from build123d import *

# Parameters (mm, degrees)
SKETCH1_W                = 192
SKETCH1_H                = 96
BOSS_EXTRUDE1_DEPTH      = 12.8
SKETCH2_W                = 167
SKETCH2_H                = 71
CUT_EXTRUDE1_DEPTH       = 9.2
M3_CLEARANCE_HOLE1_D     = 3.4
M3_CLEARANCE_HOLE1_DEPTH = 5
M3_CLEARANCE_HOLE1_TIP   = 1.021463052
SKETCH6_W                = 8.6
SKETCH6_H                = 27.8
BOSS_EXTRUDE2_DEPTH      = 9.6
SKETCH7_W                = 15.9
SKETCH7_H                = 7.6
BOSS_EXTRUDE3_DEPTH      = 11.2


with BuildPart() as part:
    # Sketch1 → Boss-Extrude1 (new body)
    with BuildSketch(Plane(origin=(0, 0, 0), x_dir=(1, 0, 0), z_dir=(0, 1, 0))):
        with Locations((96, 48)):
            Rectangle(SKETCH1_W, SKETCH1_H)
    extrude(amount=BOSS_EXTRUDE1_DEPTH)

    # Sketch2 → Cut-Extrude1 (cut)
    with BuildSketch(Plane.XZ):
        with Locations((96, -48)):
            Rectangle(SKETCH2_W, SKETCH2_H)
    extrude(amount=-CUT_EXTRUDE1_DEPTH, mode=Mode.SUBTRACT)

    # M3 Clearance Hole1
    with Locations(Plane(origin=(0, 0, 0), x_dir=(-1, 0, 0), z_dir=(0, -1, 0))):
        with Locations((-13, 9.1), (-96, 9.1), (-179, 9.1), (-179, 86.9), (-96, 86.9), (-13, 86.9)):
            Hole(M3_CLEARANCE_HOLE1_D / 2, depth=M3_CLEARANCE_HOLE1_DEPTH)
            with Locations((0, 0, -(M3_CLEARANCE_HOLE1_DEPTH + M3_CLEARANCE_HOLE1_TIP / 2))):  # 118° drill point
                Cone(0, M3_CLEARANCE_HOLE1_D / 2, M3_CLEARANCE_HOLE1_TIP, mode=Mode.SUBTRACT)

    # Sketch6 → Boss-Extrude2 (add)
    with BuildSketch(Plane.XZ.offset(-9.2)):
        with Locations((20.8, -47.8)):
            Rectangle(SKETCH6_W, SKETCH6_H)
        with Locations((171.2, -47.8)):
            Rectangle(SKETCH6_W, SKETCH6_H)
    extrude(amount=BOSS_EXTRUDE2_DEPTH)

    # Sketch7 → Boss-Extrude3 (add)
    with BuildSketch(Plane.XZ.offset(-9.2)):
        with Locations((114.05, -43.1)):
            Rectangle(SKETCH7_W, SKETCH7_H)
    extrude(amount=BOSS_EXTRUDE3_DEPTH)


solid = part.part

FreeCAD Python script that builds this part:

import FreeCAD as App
import Part
import Sketcher

doc = App.newDocument("Part")
body = doc.addObject("PartDesign::Body", "Body")

# Sketch on XZ plane
sketch1 = body.newObject("Sketcher::SketchObject", "Sketch")
sketch1.AttachmentSupport = (doc.getObject("XZ_Plane"), [""])
sketch1.MapMode = "FlatFace"
sketch1.addGeometry([
    Part.LineSegment(App.Vector(0, -96, 0), App.Vector(0, 0, 0)),
    Part.LineSegment(App.Vector(0, 0, 0), App.Vector(192, 0, 0)),
    Part.LineSegment(App.Vector(192, 0, 0), App.Vector(192, -96, 0)),
    Part.LineSegment(App.Vector(192, -96, 0), App.Vector(0, -96, 0)),
], False)
sketch1.addConstraint([
    Sketcher.Constraint("Coincident", 0, 2, 1, 1),
    Sketcher.Constraint("Coincident", 1, 2, 2, 1),
    Sketcher.Constraint("Coincident", 2, 2, 3, 1),
    Sketcher.Constraint("Coincident", 3, 2, 0, 1),
    Sketcher.Constraint("Vertical", 0),
    Sketcher.Constraint("Horizontal", 1),
    Sketcher.Constraint("Vertical", 2),
    Sketcher.Constraint("Horizontal", 3),
    Sketcher.Constraint("Coincident", 0, 2, -1, 1),
    Sketcher.Constraint("DistanceX", 1, 1, 1, 2, 192.0),
    Sketcher.Constraint("DistanceY", 0, 1, 0, 2, 96.0),
])
pad1 = body.newObject("PartDesign::Pad", "Pad")
pad1.Profile = sketch1
pad1.Length = 12.8
pad1.Reversed = True

# Sketch on XZ plane
sketch2 = body.newObject("Sketcher::SketchObject", "Sketch001")
sketch2.AttachmentSupport = (doc.getObject("XZ_Plane"), [""])
sketch2.MapMode = "FlatFace"
sketch2.addGeometry([
    Part.LineSegment(App.Vector(12, -12, 0), App.Vector(12, -84, 0)),
    Part.LineSegment(App.Vector(12, -84, 0), App.Vector(180, -84, 0)),
    Part.LineSegment(App.Vector(180, -84, 0), App.Vector(180, -12, 0)),
    Part.LineSegment(App.Vector(180, -12, 0), App.Vector(12, -12, 0)),
], False)
sketch2.addConstraint([
    Sketcher.Constraint("Coincident", 0, 2, 1, 1),
    Sketcher.Constraint("Coincident", 1, 2, 2, 1),
    Sketcher.Constraint("Coincident", 2, 2, 3, 1),
    Sketcher.Constraint("Coincident", 3, 2, 0, 1),
    Sketcher.Constraint("Vertical", 0),
    Sketcher.Constraint("Horizontal", 1),
    Sketcher.Constraint("Vertical", 2),
    Sketcher.Constraint("Horizontal", 3),
    Sketcher.Constraint("DistanceX", 1, 1, 1, 2, 167.0),
    Sketcher.Constraint("DistanceY", 0, 2, 0, 1, 71.0),
    Sketcher.Constraint("DistanceX", -1, 1, 0, 2, 12.5),
    Sketcher.Constraint("DistanceY", 0, 2, -1, 1, 83.5),
])
pocket1 = body.newObject("PartDesign::Pocket", "Pocket")
pocket1.Profile = sketch2
pocket1.Length = 9.2

# Sketch on XZ plane
sketch3 = body.newObject("Sketcher::SketchObject", "Sketch002")
sketch3.AttachmentSupport = (doc.getObject("XZ_Plane"), [""])
sketch3.MapMode = "FlatFace"
sketch3.addGeometry([
    Part.Circle(App.Vector(13, -9.1, 0), App.Vector(0, 0, 1), 1.7),  # 0
    Part.Circle(App.Vector(96, -9.1, 0), App.Vector(0, 0, 1), 1.7),  # 1
    Part.Circle(App.Vector(179, -9.1, 0), App.Vector(0, 0, 1), 1.7),  # 2
    Part.Circle(App.Vector(179, -86.9, 0), App.Vector(0, 0, 1), 1.7),  # 3
    Part.Circle(App.Vector(96, -86.9, 0), App.Vector(0, 0, 1), 1.7),  # 4
    Part.Circle(App.Vector(13, -86.9, 0), App.Vector(0, 0, 1), 1.7),  # 5
], False)
sketch3.addConstraint([
    Sketcher.Constraint("Equal", 0, 1),
    Sketcher.Constraint("Equal", 1, 2),
    Sketcher.Constraint("Equal", 2, 3),
    Sketcher.Constraint("Equal", 3, 4),
    Sketcher.Constraint("Equal", 4, 5),
    Sketcher.Constraint("Horizontal", 0, 3, 1, 3),
    Sketcher.Constraint("Horizontal", 1, 3, 2, 3),
    Sketcher.Constraint("Horizontal", 3, 3, 4, 3),
    Sketcher.Constraint("Horizontal", 4, 3, 5, 3),
    Sketcher.Constraint("Vertical", 2, 3, 3, 3),
    Sketcher.Constraint("Vertical", 1, 3, 4, 3),
    Sketcher.Constraint("Vertical", 0, 3, 5, 3),
    Sketcher.Constraint("Diameter", 0, 3.4),
    Sketcher.Constraint("DistanceX", -1, 1, 0, 3, 13.0),
    Sketcher.Constraint("DistanceX", -1, 1, 1, 3, 96.0),
    Sketcher.Constraint("DistanceX", -1, 1, 2, 3, 179.0),
    Sketcher.Constraint("DistanceY", 0, 3, -1, 1, 9.1),
    Sketcher.Constraint("DistanceY", 3, 3, -1, 1, 86.9),
])
doc.recompute()
hole = body.newObject("PartDesign::Hole", "Hole")
hole.Profile = sketch3
hole.ThreadType = "None"
hole.Diameter = 3.4
hole.DepthType = "Dimension"
hole.Depth = 5
hole.DrillPoint = "Angled"
hole.DrillPointAngle = 118

# Sketch on XZ plane
sketch4 = body.newObject("Sketcher::SketchObject", "Sketch003")
sketch4.AttachmentSupport = (doc.getObject("XZ_Plane"), [""])
sketch4.MapMode = "FlatFace"
sketch4.AttachmentOffset = App.Placement(App.Vector(0, 0, -9.2), App.Rotation())
sketch4.addGeometry([
    Part.LineSegment(App.Vector(16, -34, 0), App.Vector(16, -62, 0)),  # 0
    Part.LineSegment(App.Vector(16, -62, 0), App.Vector(25, -62, 0)),  # 1
    Part.LineSegment(App.Vector(25, -62, 0), App.Vector(25, -34, 0)),  # 2
    Part.LineSegment(App.Vector(25, -34, 0), App.Vector(16, -34, 0)),  # 3
    Part.LineSegment(App.Vector(167, -34, 0), App.Vector(167, -62, 0)),  # 4
    Part.LineSegment(App.Vector(167, -62, 0), App.Vector(176, -62, 0)),  # 5
    Part.LineSegment(App.Vector(176, -62, 0), App.Vector(176, -34, 0)),  # 6
    Part.LineSegment(App.Vector(176, -34, 0), App.Vector(167, -34, 0)),  # 7
], False)
sketch4.addConstraint([
    Sketcher.Constraint("Coincident", 0, 2, 1, 1),
    Sketcher.Constraint("Coincident", 1, 2, 2, 1),
    Sketcher.Constraint("Coincident", 2, 2, 3, 1),
    Sketcher.Constraint("Coincident", 3, 2, 0, 1),
    Sketcher.Constraint("Coincident", 4, 2, 5, 1),
    Sketcher.Constraint("Coincident", 5, 2, 6, 1),
    Sketcher.Constraint("Coincident", 6, 2, 7, 1),
    Sketcher.Constraint("Coincident", 7, 2, 4, 1),
    Sketcher.Constraint("Vertical", 0),
    Sketcher.Constraint("Horizontal", 1),
    Sketcher.Constraint("Vertical", 2),
    Sketcher.Constraint("Horizontal", 3),
    Sketcher.Constraint("Vertical", 4),
    Sketcher.Constraint("Horizontal", 5),
    Sketcher.Constraint("Vertical", 6),
    Sketcher.Constraint("Horizontal", 7),
    Sketcher.Constraint("Horizontal", 1, 2, 4, 2),
    Sketcher.Constraint("Horizontal", 3, 2, 6, 2),
    Sketcher.Constraint("Equal", 3, 5),
    Sketcher.Constraint("DistanceX", 1, 1, 1, 2, 8.6),
    Sketcher.Constraint("DistanceY", 0, 2, 0, 1, 27.8),
    Sketcher.Constraint("DistanceX", 0, 2, 5, 2, 159.0),
    Sketcher.Constraint("DistanceX", -1, 1, 0, 2, 16.5),
    Sketcher.Constraint("DistanceY", 0, 2, -1, 1, 61.7),
])
pad2 = body.newObject("PartDesign::Pad", "Pad001")
pad2.Profile = sketch4
pad2.Length = 9.6

# Sketch on XZ plane
sketch5 = body.newObject("Sketcher::SketchObject", "Sketch004")
sketch5.AttachmentSupport = (doc.getObject("XZ_Plane"), [""])
sketch5.MapMode = "FlatFace"
sketch5.AttachmentOffset = App.Placement(App.Vector(0, 0, -9.2), App.Rotation())
sketch5.addGeometry([
    Part.LineSegment(App.Vector(106, -39, 0), App.Vector(106, -47, 0)),
    Part.LineSegment(App.Vector(106, -47, 0), App.Vector(122, -47, 0)),
    Part.LineSegment(App.Vector(122, -47, 0), App.Vector(122, -39, 0)),
    Part.LineSegment(App.Vector(122, -39, 0), App.Vector(106, -39, 0)),
], False)
sketch5.addConstraint([
    Sketcher.Constraint("Coincident", 0, 2, 1, 1),
    Sketcher.Constraint("Coincident", 1, 2, 2, 1),
    Sketcher.Constraint("Coincident", 2, 2, 3, 1),
    Sketcher.Constraint("Coincident", 3, 2, 0, 1),
    Sketcher.Constraint("Vertical", 0),
    Sketcher.Constraint("Horizontal", 1),
    Sketcher.Constraint("Vertical", 2),
    Sketcher.Constraint("Horizontal", 3),
    Sketcher.Constraint("DistanceX", 1, 1, 1, 2, 15.9),
    Sketcher.Constraint("DistanceY", 0, 2, 0, 1, 7.6),
    Sketcher.Constraint("DistanceX", -1, 1, 1, 2, 122.0),
    Sketcher.Constraint("DistanceY", 0, 2, -1, 1, 46.9),
])
pad3 = body.newObject("PartDesign::Pad", "Pad002")
pad3.Profile = sketch5
pad3.Length = 11.2

doc.recompute()
